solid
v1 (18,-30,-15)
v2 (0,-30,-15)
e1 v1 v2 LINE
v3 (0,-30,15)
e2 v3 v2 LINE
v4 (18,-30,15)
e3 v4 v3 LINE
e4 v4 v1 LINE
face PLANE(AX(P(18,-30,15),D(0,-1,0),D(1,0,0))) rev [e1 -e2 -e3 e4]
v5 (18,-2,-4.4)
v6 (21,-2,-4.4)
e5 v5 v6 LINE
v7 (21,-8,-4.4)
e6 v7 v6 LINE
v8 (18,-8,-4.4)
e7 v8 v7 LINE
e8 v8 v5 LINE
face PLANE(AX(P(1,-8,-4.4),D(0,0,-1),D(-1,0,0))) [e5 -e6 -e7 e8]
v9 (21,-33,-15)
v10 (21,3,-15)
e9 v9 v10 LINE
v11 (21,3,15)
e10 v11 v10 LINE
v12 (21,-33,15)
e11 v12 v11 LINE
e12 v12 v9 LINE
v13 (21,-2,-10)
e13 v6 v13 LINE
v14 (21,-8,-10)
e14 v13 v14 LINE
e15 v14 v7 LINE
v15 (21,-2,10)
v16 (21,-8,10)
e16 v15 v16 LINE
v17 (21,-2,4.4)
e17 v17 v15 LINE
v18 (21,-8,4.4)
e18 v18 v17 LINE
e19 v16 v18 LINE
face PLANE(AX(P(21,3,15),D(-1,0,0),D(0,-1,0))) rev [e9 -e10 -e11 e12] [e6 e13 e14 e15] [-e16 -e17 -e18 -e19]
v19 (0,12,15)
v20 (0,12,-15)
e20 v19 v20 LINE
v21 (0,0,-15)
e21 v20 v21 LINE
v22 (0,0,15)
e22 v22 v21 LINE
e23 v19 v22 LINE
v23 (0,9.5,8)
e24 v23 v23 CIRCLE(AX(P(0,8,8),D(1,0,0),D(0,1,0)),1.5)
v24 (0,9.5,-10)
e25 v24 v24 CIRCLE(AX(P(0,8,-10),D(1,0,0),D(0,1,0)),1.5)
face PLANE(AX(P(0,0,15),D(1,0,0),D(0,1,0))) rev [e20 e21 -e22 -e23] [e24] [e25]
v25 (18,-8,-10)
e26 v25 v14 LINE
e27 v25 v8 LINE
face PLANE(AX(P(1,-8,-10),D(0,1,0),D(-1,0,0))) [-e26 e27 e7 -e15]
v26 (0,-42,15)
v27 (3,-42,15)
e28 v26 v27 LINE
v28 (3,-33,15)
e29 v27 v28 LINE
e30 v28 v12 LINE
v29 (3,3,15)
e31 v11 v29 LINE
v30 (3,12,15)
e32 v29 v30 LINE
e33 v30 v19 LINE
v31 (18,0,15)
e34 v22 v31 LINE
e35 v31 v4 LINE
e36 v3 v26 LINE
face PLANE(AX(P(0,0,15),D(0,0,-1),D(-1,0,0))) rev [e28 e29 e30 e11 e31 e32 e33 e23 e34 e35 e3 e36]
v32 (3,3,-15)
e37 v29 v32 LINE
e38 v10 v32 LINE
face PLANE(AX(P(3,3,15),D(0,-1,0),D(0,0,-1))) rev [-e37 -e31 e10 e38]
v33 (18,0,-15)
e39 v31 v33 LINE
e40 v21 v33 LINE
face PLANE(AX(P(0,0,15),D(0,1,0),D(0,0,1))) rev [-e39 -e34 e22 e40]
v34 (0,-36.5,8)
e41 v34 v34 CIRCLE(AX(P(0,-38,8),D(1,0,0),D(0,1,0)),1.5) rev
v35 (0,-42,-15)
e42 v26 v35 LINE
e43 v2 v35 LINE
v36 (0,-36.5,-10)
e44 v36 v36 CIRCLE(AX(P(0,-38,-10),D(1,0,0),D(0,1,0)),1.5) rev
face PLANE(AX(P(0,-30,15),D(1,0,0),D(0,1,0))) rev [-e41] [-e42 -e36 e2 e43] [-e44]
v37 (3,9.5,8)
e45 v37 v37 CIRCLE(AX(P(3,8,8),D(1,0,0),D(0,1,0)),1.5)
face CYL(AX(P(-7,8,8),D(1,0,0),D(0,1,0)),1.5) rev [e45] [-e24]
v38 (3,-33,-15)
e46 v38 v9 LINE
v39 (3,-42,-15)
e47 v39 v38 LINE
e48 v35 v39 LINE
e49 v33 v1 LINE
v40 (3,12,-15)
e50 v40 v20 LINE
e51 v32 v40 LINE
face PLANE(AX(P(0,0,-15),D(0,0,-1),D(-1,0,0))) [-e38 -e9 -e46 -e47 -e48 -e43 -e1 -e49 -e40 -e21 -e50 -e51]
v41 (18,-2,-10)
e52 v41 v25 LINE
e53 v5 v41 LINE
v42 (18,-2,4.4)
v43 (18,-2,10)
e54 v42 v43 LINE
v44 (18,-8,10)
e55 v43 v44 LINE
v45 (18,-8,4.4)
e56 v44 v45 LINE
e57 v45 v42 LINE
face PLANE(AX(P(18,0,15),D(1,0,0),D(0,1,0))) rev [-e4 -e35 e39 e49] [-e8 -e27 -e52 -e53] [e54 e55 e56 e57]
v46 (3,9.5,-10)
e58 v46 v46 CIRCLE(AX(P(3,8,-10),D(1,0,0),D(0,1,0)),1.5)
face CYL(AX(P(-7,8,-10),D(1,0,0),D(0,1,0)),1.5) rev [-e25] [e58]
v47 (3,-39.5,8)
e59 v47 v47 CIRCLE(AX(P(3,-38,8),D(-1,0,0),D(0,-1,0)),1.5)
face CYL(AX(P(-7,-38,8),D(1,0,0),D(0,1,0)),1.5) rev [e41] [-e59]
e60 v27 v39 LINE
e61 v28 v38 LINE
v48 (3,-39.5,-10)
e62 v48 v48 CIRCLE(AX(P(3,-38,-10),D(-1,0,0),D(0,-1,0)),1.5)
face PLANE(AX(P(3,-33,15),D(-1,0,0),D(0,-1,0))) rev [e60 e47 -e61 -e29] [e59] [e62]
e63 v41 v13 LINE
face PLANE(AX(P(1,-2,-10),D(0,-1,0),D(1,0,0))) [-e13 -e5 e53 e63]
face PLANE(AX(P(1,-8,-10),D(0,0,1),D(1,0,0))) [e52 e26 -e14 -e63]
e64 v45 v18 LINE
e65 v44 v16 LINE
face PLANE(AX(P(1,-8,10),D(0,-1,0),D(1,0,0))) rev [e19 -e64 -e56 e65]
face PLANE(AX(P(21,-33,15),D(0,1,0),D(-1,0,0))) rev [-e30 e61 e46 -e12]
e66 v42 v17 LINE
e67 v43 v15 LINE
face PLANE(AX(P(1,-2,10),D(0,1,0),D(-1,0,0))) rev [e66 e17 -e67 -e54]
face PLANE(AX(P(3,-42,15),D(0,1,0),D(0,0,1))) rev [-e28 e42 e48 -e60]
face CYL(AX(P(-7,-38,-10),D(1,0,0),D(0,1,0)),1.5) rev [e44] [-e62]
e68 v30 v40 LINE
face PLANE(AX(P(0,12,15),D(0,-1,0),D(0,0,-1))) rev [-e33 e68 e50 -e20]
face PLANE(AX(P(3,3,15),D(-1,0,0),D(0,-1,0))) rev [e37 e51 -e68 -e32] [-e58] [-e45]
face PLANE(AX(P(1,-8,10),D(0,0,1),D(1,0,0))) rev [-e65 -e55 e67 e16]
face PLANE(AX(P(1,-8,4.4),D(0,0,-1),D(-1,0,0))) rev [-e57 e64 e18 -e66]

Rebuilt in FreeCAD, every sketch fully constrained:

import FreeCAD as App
import Part
import Sketcher
from FreeCAD import Vector
Q = App.Units.Quantity


def add_polygon(sketch, points):
    """Adds a closed chain of lines whose ends are joined by coincident constraints."""
    first, n = sketch.GeometryCount, len(points)
    for a, b in zip(points, points[1:] + points[:1]):
        sketch.addGeometry(Part.LineSegment(App.Vector(*a, 0), App.Vector(*b, 0)), False)
    for i in range(n):
        sketch.addConstraint(Sketcher.Constraint("Coincident", first + i, 2, first + (i + 1) % n, 1))

doc = App.newDocument("Part")
body = doc.addObject("PartDesign::Body", "Body")

# Sketch on XY plane
sketch1 = body.newObject("Sketcher::SketchObject", "Sketch")
sketch1.AttachmentSupport = (doc.getObject("XY_Plane"), [""])
sketch1.MapMode = "FlatFace"
add_polygon(sketch1, [(0, 0), (18, 0), (18, -30), (0, -30), (0, -42), (3, -42), (3, -33), (21, -33), (21, 3), (3, 3), (3, 12), (0, 12)])  # lines 0-11
sketch1.addConstraint([
    Sketcher.Constraint("Horizontal", 0),
    Sketcher.Constraint("Vertical", 1),
    Sketcher.Constraint("Horizontal", 2),
    Sketcher.Constraint("Vertical", 3),
    Sketcher.Constraint("Horizontal", 4),
    Sketcher.Constraint("Vertical", 5),
    Sketcher.Constraint("Horizontal", 6),
    Sketcher.Constraint("Vertical", 7),
    Sketcher.Constraint("Horizontal", 8),
    Sketcher.Constraint("Vertical", 9),
    Sketcher.Constraint("Horizontal", 10),
    Sketcher.Constraint("Vertical", 11),
    Sketcher.Constraint("Coincident", 11, 2, -1, 1),
    Sketcher.Constraint("PointOnObject", 2, 2, -2),
    Sketcher.Constraint("Vertical", 5, 2, 8, 2),
    Sketcher.Constraint("Equal", 2, 6),
    Sketcher.Constraint("Equal", 5, 9),
    Sketcher.Constraint("Equal", 3, 11),
    Sketcher.Constraint("DistanceX", 0, 1, 0, 2, Q("18 mm")),
    Sketcher.Constraint("DistanceX", 4, 1, 4, 2, Q("3 mm")),
    Sketcher.Constraint("DistanceY", 1, 2, 1, 1, Q("30 mm")),
    Sketcher.Constraint("DistanceY", 3, 2, 3, 1, Q("12 mm")),
    Sketcher.Constraint("DistanceY", 5, 1, 5, 2, Q("9 mm")),
])
pad1 = body.newObject("PartDesign::Pad", "Pad")
pad1.Profile = sketch1
pad1.Length = 30
pad1.Midplane = True

# Sketch on YZ plane
sketch2 = body.newObject("Sketcher::SketchObject", "Sketch001")
sketch2.AttachmentSupport = (doc.getObject("YZ_Plane"), [""])
sketch2.MapMode = "FlatFace"
sketch2.AttachmentOffset = App.Placement(Vector(0, 0, 21), App.Rotation())
add_polygon(sketch2, [(-2, 10), (-8, 10), (-8, 4.4), (-2, 4.4)])  # lines 0-3
sketch2.addConstraint([
    Sketcher.Constraint("Horizontal", 0),
    Sketcher.Constraint("Vertical", 1),
    Sketcher.Constraint("Horizontal", 2),
    Sketcher.Constraint("Vertical", 3),
    Sketcher.Constraint("DistanceX", 0, 2, 0, 1, Q("6 mm")),
    Sketcher.Constraint("DistanceY", 1, 2, 1, 1, Q("5.6 mm")),
    Sketcher.Constraint("DistanceX", 0, 2, -1, 1, Q("8 mm")),
    Sketcher.Constraint("DistanceY", -1, 1, 0, 2, Q("10 mm")),
])
pocket1 = body.newObject("PartDesign::Pocket", "Pocket")
pocket1.Profile = sketch2
pocket1.Length = 20
doc.recompute()

mirrored = body.newObject("PartDesign::Mirrored", "Mirrored")
mirrored.Originals = [pocket1]
mirrored.MirrorPlane = (doc.getObject("XY_Plane"), [""])
body.Tip = mirrored

# Sketch on YZ plane
sketch3 = body.newObject("Sketcher::SketchObject", "Sketch002")
sketch3.AttachmentSupport = (doc.getObject("YZ_Plane"), [""])
sketch3.MapMode = "FlatFace"
sketch3.AttachmentOffset = App.Placement(Vector(0, 0, 3), App.Rotation())
sketch3.addGeometry([
    Part.Circle(Vector(8, -10, 0), Vector(0, 0, 1), 1.5),
    Part.Circle(Vector(8, 8, 0), Vector(0, 0, 1), 1.5),
], False)
sketch3.addConstraint([
    Sketcher.Constraint("Equal", 0, 1),
    Sketcher.Constraint("Vertical", 0, 3, 1, 3),
    Sketcher.Constraint("Diameter", 0, Q("3 mm")),
    Sketcher.Constraint("DistanceX", -1, 1, 0, 3, Q("8 mm")),
    Sketcher.Constraint("DistanceY", 0, 3, -1, 1, Q("10 mm")),
    Sketcher.Constraint("DistanceY", -1, 1, 1, 3, Q("8 mm")),
])
pocket2 = body.newObject("PartDesign::Pocket", "Pocket001")
pocket2.Profile = sketch3
pocket2.Length = 10
doc.recompute()

datumplane = body.newObject("PartDesign::Plane", "DatumPlane")
datumplane.AttachmentSupport = (doc.getObject("XZ_Plane"), [""])
datumplane.MapMode = "FlatFace"
datumplane.AttachmentOffset = App.Placement(Vector(0, 0, 15), App.Rotation())
mirrored2 = body.newObject("PartDesign::Mirrored", "Mirrored001")
mirrored2.Originals = [pocket2]
mirrored2.MirrorPlane = (datumplane, [""])
body.Tip = mirrored2

doc.recompute()
